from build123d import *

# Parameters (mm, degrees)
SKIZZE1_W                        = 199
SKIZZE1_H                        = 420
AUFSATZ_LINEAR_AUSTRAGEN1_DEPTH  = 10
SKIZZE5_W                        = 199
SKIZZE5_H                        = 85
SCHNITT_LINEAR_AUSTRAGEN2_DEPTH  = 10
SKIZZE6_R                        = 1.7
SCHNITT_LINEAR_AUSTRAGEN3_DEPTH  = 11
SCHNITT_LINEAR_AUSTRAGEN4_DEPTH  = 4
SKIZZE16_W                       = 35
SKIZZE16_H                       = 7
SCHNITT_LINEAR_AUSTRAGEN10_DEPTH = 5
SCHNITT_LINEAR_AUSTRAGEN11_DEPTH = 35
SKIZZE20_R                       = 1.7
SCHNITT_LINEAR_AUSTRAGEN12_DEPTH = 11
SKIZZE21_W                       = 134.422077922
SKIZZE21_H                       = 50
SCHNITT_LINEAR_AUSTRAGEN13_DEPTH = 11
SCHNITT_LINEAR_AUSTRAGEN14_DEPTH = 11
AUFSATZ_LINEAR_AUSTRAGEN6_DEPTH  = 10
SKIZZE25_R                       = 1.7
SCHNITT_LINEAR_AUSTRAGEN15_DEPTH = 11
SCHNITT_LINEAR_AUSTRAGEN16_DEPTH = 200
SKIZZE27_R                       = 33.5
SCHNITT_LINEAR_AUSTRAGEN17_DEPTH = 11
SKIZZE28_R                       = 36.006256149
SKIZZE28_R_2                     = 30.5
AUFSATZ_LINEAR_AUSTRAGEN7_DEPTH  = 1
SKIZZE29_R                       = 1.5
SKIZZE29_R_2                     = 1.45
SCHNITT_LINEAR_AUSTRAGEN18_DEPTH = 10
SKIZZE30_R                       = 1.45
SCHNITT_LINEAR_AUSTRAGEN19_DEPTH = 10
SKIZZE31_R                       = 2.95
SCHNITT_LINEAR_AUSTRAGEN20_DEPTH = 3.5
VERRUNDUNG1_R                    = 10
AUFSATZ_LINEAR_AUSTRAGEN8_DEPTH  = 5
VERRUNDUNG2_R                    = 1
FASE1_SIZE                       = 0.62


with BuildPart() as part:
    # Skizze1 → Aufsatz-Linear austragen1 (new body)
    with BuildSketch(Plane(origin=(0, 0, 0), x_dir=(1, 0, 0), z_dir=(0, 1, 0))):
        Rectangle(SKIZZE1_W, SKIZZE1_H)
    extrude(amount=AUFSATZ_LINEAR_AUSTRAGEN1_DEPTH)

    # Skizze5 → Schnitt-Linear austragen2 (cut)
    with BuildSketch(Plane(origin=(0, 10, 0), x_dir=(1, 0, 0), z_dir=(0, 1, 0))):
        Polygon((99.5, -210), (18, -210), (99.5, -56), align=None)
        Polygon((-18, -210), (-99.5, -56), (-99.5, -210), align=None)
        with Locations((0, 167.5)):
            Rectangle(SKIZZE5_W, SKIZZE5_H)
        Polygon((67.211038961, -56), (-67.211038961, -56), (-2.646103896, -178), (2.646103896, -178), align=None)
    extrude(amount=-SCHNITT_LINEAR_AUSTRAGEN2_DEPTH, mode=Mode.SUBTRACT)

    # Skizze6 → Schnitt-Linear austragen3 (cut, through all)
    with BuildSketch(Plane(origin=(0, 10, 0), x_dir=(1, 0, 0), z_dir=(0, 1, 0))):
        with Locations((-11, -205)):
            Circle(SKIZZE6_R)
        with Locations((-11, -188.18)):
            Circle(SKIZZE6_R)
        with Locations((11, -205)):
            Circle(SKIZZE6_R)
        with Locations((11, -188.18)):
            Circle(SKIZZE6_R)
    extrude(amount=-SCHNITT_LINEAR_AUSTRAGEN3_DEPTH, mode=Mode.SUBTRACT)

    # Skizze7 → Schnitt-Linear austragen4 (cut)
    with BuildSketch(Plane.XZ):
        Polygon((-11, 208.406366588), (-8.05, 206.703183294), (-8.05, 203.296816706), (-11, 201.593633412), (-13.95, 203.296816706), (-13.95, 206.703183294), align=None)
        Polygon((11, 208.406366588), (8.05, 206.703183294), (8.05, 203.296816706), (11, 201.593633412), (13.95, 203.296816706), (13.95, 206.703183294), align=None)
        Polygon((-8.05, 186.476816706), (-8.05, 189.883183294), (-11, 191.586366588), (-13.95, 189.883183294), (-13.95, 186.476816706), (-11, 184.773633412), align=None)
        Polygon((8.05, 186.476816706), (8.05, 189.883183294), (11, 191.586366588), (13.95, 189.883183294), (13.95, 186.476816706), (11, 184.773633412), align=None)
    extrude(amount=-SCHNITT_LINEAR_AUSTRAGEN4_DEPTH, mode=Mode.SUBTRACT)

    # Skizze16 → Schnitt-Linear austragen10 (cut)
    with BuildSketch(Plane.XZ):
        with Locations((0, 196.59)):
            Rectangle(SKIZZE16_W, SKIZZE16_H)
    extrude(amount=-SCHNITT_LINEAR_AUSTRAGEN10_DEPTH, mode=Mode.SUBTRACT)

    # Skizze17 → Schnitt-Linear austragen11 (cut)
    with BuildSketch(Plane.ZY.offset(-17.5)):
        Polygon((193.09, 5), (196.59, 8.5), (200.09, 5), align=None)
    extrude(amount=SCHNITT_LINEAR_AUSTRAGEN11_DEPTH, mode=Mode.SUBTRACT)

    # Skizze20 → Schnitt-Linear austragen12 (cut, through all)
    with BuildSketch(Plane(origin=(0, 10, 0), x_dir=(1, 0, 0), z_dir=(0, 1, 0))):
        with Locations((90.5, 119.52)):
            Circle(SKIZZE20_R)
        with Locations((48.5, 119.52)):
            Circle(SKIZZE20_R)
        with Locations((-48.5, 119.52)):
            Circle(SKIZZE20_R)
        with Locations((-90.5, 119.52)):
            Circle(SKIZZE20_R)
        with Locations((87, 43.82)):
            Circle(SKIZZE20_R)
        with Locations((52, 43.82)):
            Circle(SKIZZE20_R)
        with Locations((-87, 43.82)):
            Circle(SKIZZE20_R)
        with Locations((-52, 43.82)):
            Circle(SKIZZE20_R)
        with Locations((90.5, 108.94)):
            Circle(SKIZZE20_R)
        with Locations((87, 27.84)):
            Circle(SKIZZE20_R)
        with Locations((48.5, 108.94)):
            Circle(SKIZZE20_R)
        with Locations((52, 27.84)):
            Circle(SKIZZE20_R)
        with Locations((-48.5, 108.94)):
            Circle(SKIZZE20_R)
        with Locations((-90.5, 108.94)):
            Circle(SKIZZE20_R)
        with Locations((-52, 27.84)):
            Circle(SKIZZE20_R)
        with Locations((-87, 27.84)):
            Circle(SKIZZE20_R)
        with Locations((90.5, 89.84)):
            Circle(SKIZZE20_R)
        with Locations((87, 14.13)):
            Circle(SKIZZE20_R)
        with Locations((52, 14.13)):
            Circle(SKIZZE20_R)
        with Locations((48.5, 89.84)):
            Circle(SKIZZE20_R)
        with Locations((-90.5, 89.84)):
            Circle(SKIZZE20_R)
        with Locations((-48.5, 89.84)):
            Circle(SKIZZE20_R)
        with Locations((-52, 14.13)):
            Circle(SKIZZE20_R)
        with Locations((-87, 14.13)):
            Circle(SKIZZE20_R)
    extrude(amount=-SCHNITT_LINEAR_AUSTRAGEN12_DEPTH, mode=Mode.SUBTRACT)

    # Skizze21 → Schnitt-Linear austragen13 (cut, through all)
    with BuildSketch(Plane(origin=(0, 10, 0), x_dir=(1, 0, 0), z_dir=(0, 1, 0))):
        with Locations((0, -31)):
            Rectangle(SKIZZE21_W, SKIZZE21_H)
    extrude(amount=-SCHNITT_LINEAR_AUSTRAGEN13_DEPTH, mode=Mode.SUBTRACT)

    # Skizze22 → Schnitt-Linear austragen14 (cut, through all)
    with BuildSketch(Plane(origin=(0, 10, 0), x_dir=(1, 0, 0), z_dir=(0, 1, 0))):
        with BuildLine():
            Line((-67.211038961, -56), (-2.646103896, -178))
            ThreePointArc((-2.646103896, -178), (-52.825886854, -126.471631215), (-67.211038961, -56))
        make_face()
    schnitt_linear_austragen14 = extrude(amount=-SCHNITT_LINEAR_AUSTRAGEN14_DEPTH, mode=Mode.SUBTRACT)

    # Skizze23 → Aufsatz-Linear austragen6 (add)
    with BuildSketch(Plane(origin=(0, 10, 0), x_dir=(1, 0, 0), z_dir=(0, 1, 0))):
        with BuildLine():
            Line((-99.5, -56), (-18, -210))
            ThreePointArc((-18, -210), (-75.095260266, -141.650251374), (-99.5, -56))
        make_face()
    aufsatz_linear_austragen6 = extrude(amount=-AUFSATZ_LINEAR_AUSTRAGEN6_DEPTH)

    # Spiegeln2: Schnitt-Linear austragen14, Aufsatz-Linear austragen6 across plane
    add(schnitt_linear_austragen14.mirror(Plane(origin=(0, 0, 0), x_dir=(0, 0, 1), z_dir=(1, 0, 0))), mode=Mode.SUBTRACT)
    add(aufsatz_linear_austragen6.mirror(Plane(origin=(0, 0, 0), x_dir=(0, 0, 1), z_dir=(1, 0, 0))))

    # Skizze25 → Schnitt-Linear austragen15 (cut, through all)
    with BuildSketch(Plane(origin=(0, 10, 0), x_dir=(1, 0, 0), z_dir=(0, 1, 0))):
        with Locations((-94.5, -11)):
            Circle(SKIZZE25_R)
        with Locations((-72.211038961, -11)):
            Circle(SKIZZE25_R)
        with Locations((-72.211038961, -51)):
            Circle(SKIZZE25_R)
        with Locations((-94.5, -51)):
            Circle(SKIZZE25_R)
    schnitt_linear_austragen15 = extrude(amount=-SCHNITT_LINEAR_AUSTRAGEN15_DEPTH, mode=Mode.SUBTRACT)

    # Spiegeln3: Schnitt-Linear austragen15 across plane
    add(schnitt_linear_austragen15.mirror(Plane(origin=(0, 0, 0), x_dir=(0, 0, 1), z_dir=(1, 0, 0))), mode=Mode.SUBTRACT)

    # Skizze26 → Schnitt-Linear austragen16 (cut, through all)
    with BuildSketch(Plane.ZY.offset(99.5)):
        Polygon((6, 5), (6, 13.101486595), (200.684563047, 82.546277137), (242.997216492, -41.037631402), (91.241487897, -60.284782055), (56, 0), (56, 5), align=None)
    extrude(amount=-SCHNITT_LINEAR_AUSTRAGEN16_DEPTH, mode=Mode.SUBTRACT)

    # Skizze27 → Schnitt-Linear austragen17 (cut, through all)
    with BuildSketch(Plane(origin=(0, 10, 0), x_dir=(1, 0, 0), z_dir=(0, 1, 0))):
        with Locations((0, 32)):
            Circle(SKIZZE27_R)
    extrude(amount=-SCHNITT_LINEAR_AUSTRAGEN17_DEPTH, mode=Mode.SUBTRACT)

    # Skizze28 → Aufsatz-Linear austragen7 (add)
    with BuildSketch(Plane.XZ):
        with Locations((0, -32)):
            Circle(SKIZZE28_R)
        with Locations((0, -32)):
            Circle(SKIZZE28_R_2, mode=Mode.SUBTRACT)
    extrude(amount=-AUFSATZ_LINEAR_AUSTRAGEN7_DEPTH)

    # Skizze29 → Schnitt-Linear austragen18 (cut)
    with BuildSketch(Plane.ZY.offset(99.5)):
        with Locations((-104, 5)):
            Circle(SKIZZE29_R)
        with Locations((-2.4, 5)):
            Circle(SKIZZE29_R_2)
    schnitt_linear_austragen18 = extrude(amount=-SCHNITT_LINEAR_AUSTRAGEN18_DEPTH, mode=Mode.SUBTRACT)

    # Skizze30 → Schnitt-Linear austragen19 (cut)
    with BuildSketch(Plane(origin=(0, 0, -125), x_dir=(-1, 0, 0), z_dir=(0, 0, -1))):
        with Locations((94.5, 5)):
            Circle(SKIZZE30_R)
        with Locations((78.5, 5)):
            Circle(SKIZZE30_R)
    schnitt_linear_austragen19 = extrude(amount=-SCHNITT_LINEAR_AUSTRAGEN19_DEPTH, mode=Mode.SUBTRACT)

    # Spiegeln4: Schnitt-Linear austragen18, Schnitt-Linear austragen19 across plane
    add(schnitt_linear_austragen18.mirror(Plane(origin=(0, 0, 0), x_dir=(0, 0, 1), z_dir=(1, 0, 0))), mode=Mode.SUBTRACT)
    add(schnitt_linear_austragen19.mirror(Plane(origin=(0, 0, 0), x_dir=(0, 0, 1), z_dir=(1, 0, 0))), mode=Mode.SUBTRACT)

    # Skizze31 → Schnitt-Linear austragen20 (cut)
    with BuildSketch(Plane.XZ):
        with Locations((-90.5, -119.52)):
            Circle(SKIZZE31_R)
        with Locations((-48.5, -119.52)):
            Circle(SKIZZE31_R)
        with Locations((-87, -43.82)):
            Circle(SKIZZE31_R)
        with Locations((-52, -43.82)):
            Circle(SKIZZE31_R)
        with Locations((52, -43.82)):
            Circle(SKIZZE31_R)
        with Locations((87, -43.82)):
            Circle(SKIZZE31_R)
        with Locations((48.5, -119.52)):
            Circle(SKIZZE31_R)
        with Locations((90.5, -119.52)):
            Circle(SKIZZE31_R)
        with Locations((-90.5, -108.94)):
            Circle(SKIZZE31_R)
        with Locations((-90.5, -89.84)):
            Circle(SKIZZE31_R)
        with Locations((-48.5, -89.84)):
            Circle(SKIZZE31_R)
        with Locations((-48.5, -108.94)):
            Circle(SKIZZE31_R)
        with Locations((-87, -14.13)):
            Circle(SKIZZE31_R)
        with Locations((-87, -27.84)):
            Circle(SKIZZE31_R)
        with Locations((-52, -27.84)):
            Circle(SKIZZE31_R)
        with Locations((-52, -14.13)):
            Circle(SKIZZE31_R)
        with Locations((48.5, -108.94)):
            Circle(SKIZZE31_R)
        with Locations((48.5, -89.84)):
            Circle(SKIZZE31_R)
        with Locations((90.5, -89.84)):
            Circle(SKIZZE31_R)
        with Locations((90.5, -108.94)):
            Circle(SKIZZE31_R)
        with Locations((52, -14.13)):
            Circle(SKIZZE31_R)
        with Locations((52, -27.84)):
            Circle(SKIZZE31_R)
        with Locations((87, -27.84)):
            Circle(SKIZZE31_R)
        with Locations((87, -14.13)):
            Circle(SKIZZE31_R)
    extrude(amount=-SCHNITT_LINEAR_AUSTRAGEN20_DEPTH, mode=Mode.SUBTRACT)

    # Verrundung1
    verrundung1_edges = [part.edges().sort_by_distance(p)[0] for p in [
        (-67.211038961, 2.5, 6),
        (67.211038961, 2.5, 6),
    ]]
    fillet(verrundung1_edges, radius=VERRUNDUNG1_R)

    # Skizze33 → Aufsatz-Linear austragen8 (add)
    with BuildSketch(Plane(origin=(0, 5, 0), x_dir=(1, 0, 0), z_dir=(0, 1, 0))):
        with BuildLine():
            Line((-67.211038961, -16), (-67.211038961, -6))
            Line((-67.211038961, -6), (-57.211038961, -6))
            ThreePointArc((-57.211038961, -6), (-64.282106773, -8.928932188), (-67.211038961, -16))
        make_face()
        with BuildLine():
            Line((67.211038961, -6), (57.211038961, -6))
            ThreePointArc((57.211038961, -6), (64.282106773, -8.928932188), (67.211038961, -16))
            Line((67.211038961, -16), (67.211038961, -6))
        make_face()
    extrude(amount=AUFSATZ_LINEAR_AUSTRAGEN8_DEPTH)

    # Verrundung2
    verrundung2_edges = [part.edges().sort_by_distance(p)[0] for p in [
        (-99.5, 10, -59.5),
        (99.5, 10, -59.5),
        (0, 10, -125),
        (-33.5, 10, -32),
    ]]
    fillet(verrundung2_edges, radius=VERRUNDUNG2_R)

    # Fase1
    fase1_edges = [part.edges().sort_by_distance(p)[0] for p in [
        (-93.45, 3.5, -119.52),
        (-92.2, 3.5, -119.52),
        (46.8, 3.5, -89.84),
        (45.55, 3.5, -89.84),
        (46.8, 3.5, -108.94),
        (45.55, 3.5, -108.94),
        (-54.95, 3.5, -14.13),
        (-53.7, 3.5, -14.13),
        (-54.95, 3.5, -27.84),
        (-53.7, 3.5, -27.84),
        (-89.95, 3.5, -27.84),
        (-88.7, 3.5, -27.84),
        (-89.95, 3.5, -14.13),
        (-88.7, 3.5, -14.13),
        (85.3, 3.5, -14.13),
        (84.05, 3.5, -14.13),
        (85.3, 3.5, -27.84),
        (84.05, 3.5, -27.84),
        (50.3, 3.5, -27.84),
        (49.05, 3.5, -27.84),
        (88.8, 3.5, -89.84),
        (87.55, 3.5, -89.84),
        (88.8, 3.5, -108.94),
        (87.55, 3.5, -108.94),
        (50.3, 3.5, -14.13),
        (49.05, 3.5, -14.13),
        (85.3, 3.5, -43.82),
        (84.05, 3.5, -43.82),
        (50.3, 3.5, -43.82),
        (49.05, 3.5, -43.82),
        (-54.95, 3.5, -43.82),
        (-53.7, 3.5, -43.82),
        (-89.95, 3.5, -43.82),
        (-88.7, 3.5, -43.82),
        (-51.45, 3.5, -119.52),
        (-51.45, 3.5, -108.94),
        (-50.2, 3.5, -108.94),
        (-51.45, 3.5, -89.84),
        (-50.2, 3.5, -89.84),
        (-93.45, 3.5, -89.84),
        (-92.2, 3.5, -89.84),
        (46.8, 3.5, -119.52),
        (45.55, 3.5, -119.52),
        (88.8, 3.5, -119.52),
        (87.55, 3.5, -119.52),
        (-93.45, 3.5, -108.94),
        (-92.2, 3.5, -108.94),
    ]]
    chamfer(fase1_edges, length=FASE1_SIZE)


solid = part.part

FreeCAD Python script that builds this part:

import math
import FreeCAD as App
import Part
import Sketcher
Q = App.Units.Quantity


def edges_at(feature, points):
    """Names of the edges that pass closest to the given points."""
    edges = feature.Shape.Edges
    near = lambda p: min(range(len(edges)), key=lambda i: edges[i].distToShape(Part.Vertex(*p))[0])
    return sorted({f"Edge{near(p) + 1}" for p in points})


def add_polygon(sketch, points):
    """Adds a closed chain of lines whose ends are joined by coincident constraints."""
    first, n = sketch.GeometryCount, len(points)
    for a, b in zip(points, points[1:] + points[:1]):
        sketch.addGeometry(Part.LineSegment(App.Vector(*a, 0), App.Vector(*b, 0)), False)
    for i in range(n):
        sketch.addConstraint(Sketcher.Constraint("Coincident", first + i, 2, first + (i + 1) % n, 1))

doc = App.newDocument("Part")
body = doc.addObject("PartDesign::Body", "Body")

# Sketch on XZ plane
sketch1 = doc.addObject("Sketcher::SketchObject", "Sketch")
body.addObject(sketch1)
sketch1.AttachmentSupport = (doc.XZ_Plane, [""])
sketch1.MapMode = "FlatFace"
add_polygon(sketch1, [(-100, -210), (-100, 210), (100, 210), (100, -210)])  # lines 0-3
sketch1.addConstraint(Sketcher.Constraint("Vertical", 0))
sketch1.addConstraint(Sketcher.Constraint("Horizontal", 1))
sketch1.addConstraint(Sketcher.Constraint("Vertical", 2))
sketch1.addConstraint(Sketcher.Constraint("Horizontal", 3))
sketch1.addConstraint(Sketcher.Constraint("Symmetric", 0, 2, 2, 2, -1, 1))
sketch1.addConstraint(Sketcher.Constraint("DistanceX", 1, 1, 1, 2, 199.0))
sketch1.addConstraint(Sketcher.Constraint("DistanceY", 0, 1, 0, 2, 420.0))
pad1 = doc.addObject("PartDesign::Pad", "Pad")
body.addObject(pad1)
pad1.Profile = sketch1
pad1.Length = 10
pad1.Reversed = True

# Sketch on XZ plane
sketch2 = doc.addObject("Sketcher::SketchObject", "Sketch001")
body.addObject(sketch2)
sketch2.AttachmentSupport = (doc.XZ_Plane, [""])
sketch2.MapMode = "FlatFace"
sketch2.AttachmentOffset = App.Placement(App.Vector(0, 0, -10), App.Rotation())
add_polygon(sketch2, [(18, 210), (100, 210), (100, 56)])  # lines 0-2
add_polygon(sketch2, [(-18, 210), (-100, 56), (-100, 210)])  # lines 3-5
add_polygon(sketch2, [(-100, -210), (-100, -125), (100, -125), (100, -210)])  # lines 6-9
add_polygon(sketch2, [(67, 56), (-67, 56), (-3, 178), (3, 178)])  # lines 10-13
sketch2.addConstraint(Sketcher.Constraint("Horizontal", 0))
sketch2.addConstraint(Sketcher.Constraint("Vertical", 1))
sketch2.addConstraint(Sketcher.Constraint("Vertical", 4))
sketch2.addConstraint(Sketcher.Constraint("Horizontal", 5))
sketch2.addConstraint(Sketcher.Constraint("Vertical", 6))
sketch2.addConstraint(Sketcher.Constraint("Horizontal", 7))
sketch2.addConstraint(Sketcher.Constraint("Vertical", 8))
sketch2.addConstraint(Sketcher.Constraint("Horizontal", 9))
sketch2.addConstraint(Sketcher.Constraint("Horizontal", 10))
sketch2.addConstraint(Sketcher.Constraint("Horizontal", 12))
sketch2.addConstraint(Sketcher.Constraint("Symmetric", 4, 2, 8, 2, -1, 1))
sketch2.addConstraint(Sketcher.Constraint("Symmetric", 0, 2, 9, 2, -1, 1))
sketch2.addConstraint(Sketcher.Constraint("Symmetric", 1, 2, 3, 2, -2))
sketch2.addConstraint(Sketcher.Constraint("Parallel", 3, 11))
sketch2.addConstraint(Sketcher.Constraint("Parallel", 2, 13))
sketch2.addConstraint(Sketcher.Constraint("Horizontal", 3, 2, 10, 2))
sketch2.addConstraint(Sketcher.Constraint("Equal", 0, 5))
sketch2.addConstraint(Sketcher.Constraint("DistanceX", 7, 1, 7, 2, 199.0))
sketch2.addConstraint(Sketcher.Constraint("DistanceY", 1, 2, 1, 1, 154.0))
sketch2.addConstraint(Sketcher.Constraint("DistanceY", 6, 1, 6, 2, 85.0))
sketch2.addConstraint(Sketcher.Constraint("DistanceX", 0, 1, 0, 2, 81.5))
sketch2.addConstraint(Sketcher.Constraint("DistanceY", -1, 1, 0, 2, 210.0))
sketch2.addConstraint(Sketcher.Constraint("DistanceY", -1, 1, 11, 2, 178.0))
sketch2.addConstraint(Sketcher.Constraint("DistanceX", 10, 2, 10, 1, 134.422078))
sketch2.addConstraint(Sketcher.Constraint("DistanceX", 10, 2, -1, 1, 67.211039))
pocket1 = doc.addObject("PartDesign::Pocket", "Pocket")
body.addObject(pocket1)
pocket1.Profile = sketch2
pocket1.Length = 10
pocket1.Reversed = True

# Sketch on XZ plane
sketch3 = doc.addObject("Sketcher::SketchObject", "Sketch002")
body.addObject(sketch3)
sketch3.AttachmentSupport = (doc.XZ_Plane, [""])
sketch3.MapMode = "FlatFace"
sketch3.AttachmentOffset = App.Placement(App.Vector(0, 0, -10), App.Rotation())
sketch3.addGeometry(Part.Circle(App.Vector(-11, 205, 0), App.Vector(0, 0, 1), 1.7), False)
sketch3.addGeometry(Part.Circle(App.Vector(-11, 188.2, 0), App.Vector(0, 0, 1), 1.7), False)
sketch3.addGeometry(Part.Circle(App.Vector(11, 205, 0), App.Vector(0, 0, 1), 1.7), False)
sketch3.addGeometry(Part.Circle(App.Vector(11, 188.2, 0), App.Vector(0, 0, 1), 1.7), False)
sketch3.addConstraint(Sketcher.Constraint("Equal", 0, 1))
sketch3.addConstraint(Sketcher.Constraint("Equal", 1, 2))
sketch3.addConstraint(Sketcher.Constraint("Equal", 2, 3))
sketch3.addConstraint(Sketcher.Constraint("Symmetric", 0, 3, 2, 3, -2))
sketch3.addConstraint(Sketcher.Constraint("Symmetric", 1, 3, 3, 3, -2))
sketch3.addConstraint(Sketcher.Constraint("Vertical", 0, 3, 1, 3))
sketch3.addConstraint(Sketcher.Constraint("Diameter", 0, 3.4))
sketch3.addConstraint(Sketcher.Constraint("DistanceX", 0, 3, -1, 1, 11.0))
sketch3.addConstraint(Sketcher.Constraint("DistanceY", -1, 1, 0, 3, 205.0))
sketch3.addConstraint(Sketcher.Constraint("DistanceY", -1, 1, 1, 3, 188.18))
pocket2 = doc.addObject("PartDesign::Pocket", "Pocket001")
body.addObject(pocket2)
pocket2.Profile = sketch3
pocket2.Type = "ThroughAll"
pocket2.Reversed = True

# Sketch on XZ plane
sketch4 = doc.addObject("Sketcher::SketchObject", "Sketch003")
body.addObject(sketch4)
sketch4.AttachmentSupport = (doc.XZ_Plane, [""])
sketch4.MapMode = "FlatFace"
add_polygon(sketch4, [(-8.1, 206.7), (-11, 208.4), (-13.9, 206.7), (-13.9, 203.3), (-11, 201.6), (-8.1, 203.3)])  # lines 0-5
add_polygon(sketch4, [(11, 208.4), (8.1, 206.7), (8.1, 203.3), (11, 201.6), (13.9, 203.3), (13.9, 206.7)])  # lines 6-11
add_polygon(sketch4, [(-8.1, 186.5), (-8.1, 189.9), (-11, 191.6), (-13.9, 189.9), (-13.9, 186.5), (-11, 184.8)])  # lines 12-17
add_polygon(sketch4, [(8.1, 189.9), (8.1, 186.5), (11, 184.8), (13.9, 186.5), (13.9, 189.9), (11, 191.6)])  # lines 18-23
sketch4.addConstraint(Sketcher.Constraint("Vertical", 2))
sketch4.addConstraint(Sketcher.Constraint("Vertical", 5))
sketch4.addConstraint(Sketcher.Constraint("Vertical", 7))
sketch4.addConstraint(Sketcher.Constraint("Vertical", 10))
sketch4.addConstraint(Sketcher.Constraint("Vertical", 12))
sketch4.addConstraint(Sketcher.Constraint("Vertical", 15))
sketch4.addConstraint(Sketcher.Constraint("Vertical", 18))
sketch4.addConstraint(Sketcher.Constraint("Vertical", 21))
sketch4.addConstraint(Sketcher.Constraint("Symmetric", 5, 2, 6, 2, -2))
sketch4.addConstraint(Sketcher.Constraint("Symmetric", 3, 2, 8, 2, -2))
sketch4.addConstraint(Sketcher.Constraint("Symmetric", 2, 2, 9, 2, -2))
sketch4.addConstraint(Sketcher.Constraint("Symmetric", 0, 2, 11, 2, -2))
sketch4.addConstraint(Sketcher.Constraint("Symmetric", 17, 2, 18, 2, -2))
sketch4.addConstraint(Sketcher.Constraint("Symmetric", 16, 2, 19, 2, -2))
sketch4.addConstraint(Sketcher.Constraint("Symmetric", 15, 2, 20, 2, -2))
sketch4.addConstraint(Sketcher.Constraint("Symmetric", 13, 2, 22, 2, -2))
sketch4.addConstraint(Sketcher.Constraint("Parallel", 0, 3))
sketch4.addConstraint(Sketcher.Constraint("Parallel", 1, 4))
sketch4.addConstraint(Sketcher.Constraint("Parallel", 4, 6))
sketch4.addConstraint(Sketcher.Constraint("Parallel", 3, 8))
sketch4.addConstraint(Sketcher.Constraint("Parallel", 8, 11))
sketch4.addConstraint(Sketcher.Constraint("Parallel", 11, 13))
sketch4.addConstraint(Sketcher.Constraint("Parallel", 9, 14))
sketch4.addConstraint(Sketcher.Constraint("Parallel", 13, 16))
sketch4.addConstraint(Sketcher.Constraint("Parallel", 14, 17))
sketch4.addConstraint(Sketcher.Constraint("Parallel", 19, 22))
sketch4.addConstraint(Sketcher.Constraint("Parallel", 20, 23))
sketch4.addConstraint(Sketcher.Constraint("Horizontal", 2, 2, 4, 2))
sketch4.addConstraint(Sketcher.Constraint("Horizontal", 1, 2, 5, 2))
sketch4.addConstraint(Sketcher.Constraint("Horizontal", 12, 2, 14, 2))
sketch4.addConstraint(Sketcher.Constraint("Horizontal", 15, 2, 17, 2))
sketch4.addConstraint(Sketcher.Constraint("Vertical", 5, 2, 12, 2))
sketch4.addConstraint(Sketcher.Constraint("Vertical", 3, 2, 13, 2))
sketch4.addConstraint(Sketcher.Constraint("Equal", 10, 12))
sketch4.addConstraint(Sketcher.Constraint("Angle", 0, Q("150 deg")))
sketch4.addConstraint(Sketcher.Constraint("DistanceX", 0, 2, -1, 1, 11.0))
sketch4.addConstraint(Sketcher.Constraint("DistanceX", 2, 2, 4, 2, 5.9))
sketch4.addConstraint(Sketcher.Constraint("DistanceY", 12, 2, 5, 2, 16.82))
sketch4.addConstraint(Sketcher.Constraint("DistanceY", 2, 2, 2, 1, 3.406367))
sketch4.addConstraint(Sketcher.Constraint("DistanceY", -1, 1, 0, 2, 208.406367))
pocket3 = doc.addObject("PartDesign::Pocket", "Pocket002")
body.addObject(pocket3)
pocket3.Profile = sketch4
pocket3.Length = 4

# Sketch on XZ plane
sketch5 = doc.addObject("Sketcher::SketchObject", "Sketch004")
body.addObject(sketch5)
sketch5.AttachmentSupport = (doc.XZ_Plane, [""])
sketch5.MapMode = "FlatFace"
add_polygon(sketch5, [(-18, 200), (-18, 193), (18, 193), (18, 200)])  # lines 0-3
sketch5.addConstraint(Sketcher.Constraint("Vertical", 0))
sketch5.addConstraint(Sketcher.Constraint("Horizontal", 1))
sketch5.addConstraint(Sketcher.Constraint("Vertical", 2))
sketch5.addConstraint(Sketcher.Constraint("Horizontal", 3))
sketch5.addConstraint(Sketcher.Constraint("DistanceX", 1, 1, 1, 2, 35.0))
sketch5.addConstraint(Sketcher.Constraint("DistanceY", 0, 2, 0, 1, 7.0))
sketch5.addConstraint(Sketcher.Constraint("DistanceX", 0, 2, -1, 1, 17.5))
sketch5.addConstraint(Sketcher.Constraint("DistanceY", -1, 1, 0, 2, 193.09))
pocket4 = doc.addObject("PartDesign::Pocket", "Pocket003")
body.addObject(pocket4)
pocket4.Profile = sketch5
pocket4.Length = 5

# Sketch on YZ plane
sketch6 = doc.addObject("Sketcher::SketchObject", "Sketch005")
body.addObject(sketch6)
sketch6.AttachmentSupport = (doc.YZ_Plane, [""])
sketch6.MapMode = "FlatFace"
sketch6.AttachmentOffset = App.Placement(App.Vector(0, 0, 17.5), App.Rotation())
add_polygon(sketch6, [(8.5, 196.6), (5, 193.1), (5, 200.1)])  # lines 0-2
sketch6.addConstraint(Sketcher.Constraint("Vertical", 1))
sketch6.addConstraint(Sketcher.Constraint("Perpendicular", 0, 2))
sketch6.addConstraint(Sketcher.Constraint("Equal", 0, 2))
sketch6.addConstraint(Sketcher.Constraint("DistanceY", 1, 1, 1, 2, 7.0))
sketch6.addConstraint(Sketcher.Constraint("DistanceX", -1, 1, 0, 2, 5.0))
sketch6.addConstraint(Sketcher.Constraint("DistanceY", -1, 1, 0, 2, 193.09))
pocket5 = doc.addObject("PartDesign::Pocket", "Pocket004")
body.addObject(pocket5)
pocket5.Profile = sketch6
pocket5.Length = 35

# Sketch on XZ plane
sketch7 = doc.addObject("Sketcher::SketchObject", "Sketch006")
body.addObject(sketch7)
sketch7.AttachmentSupport = (doc.XZ_Plane, [""])
sketch7.MapMode = "FlatFace"
sketch7.AttachmentOffset = App.Placement(App.Vector(0, 0, -10), App.Rotation())
sketch7.addGeometry(Part.Circle(App.Vector(90.5, -119.5, 0), App.Vector(0, 0, 1), 1.7), False)
sketch7.addGeometry(Part.Circle(App.Vector(48.5, -119.5, 0), App.Vector(0, 0, 1), 1.7), False)
sketch7.addGeometry(Part.Circle(App.Vector(-48.5, -119.5, 0), App.Vector(0, 0, 1), 1.7), False)
sketch7.addGeometry(Part.Circle(App.Vector(-90.5, -119.5, 0), App.Vector(0, 0, 1), 1.7), False)
sketch7.addGeometry(Part.Circle(App.Vector(87, -43.8, 0), App.Vector(0, 0, 1), 1.7), False)
sketch7.addGeometry(Part.Circle(App.Vector(52, -43.8, 0), App.Vector(0, 0, 1), 1.7), False)
sketch7.addGeometry(Part.Circle(App.Vector(-87, -43.8, 0), App.Vector(0, 0, 1), 1.7), False)
sketch7.addGeometry(Part.Circle(App.Vector(-52, -43.8, 0), App.Vector(0, 0, 1), 1.7), False)
sketch7.addGeometry(Part.Circle(App.Vector(90.5, -108.9, 0), App.Vector(0, 0, 1), 1.7), False)
sketch7.addGeometry(Part.Circle(App.Vector(87, -27.8, 0), App.Vector(0, 0, 1), 1.7), False)
sketch7.addGeometry(Part.Circle(App.Vector(48.5, -108.9, 0), App.Vector(0, 0, 1), 1.7), False)
sketch7.addGeometry(Part.Circle(App.Vector(52, -27.8, 0), App.Vector(0, 0, 1), 1.7), False)
sketch7.addGeometry(Part.Circle(App.Vector(-48.5, -108.9, 0), App.Vector(0, 0, 1), 1.7), False)
sketch7.addGeometry(Part.Circle(App.Vector(-90.5, -108.9, 0), App.Vector(0, 0, 1), 1.7), False)
sketch7.addGeometry(Part.Circle(App.Vector(-52, -27.8, 0), App.Vector(0, 0, 1), 1.7), False)
sketch7.addGeometry(Part.Circle(App.Vector(-87, -27.8, 0), App.Vector(0, 0, 1), 1.7), False)
sketch7.addGeometry(Part.Circle(App.Vector(90.5, -89.8, 0), App.Vector(0, 0, 1), 1.7), False)
sketch7.addGeometry(Part.Circle(App.Vector(87, -14.1, 0), App.Vector(0, 0, 1), 1.7), False)
sketch7.addGeometry(Part.Circle(App.Vector(52, -14.1, 0), App.Vector(0, 0, 1), 1.7), False)
sketch7.addGeometry(Part.Circle(App.Vector(48.5, -89.8, 0), App.Vector(0, 0, 1), 1.7), False)
sketch7.addGeometry(Part.Circle(App.Vector(-90.5, -89.8, 0), App.Vector(0, 0, 1), 1.7), False)
sketch7.addGeometry(Part.Circle(App.Vector(-48.5, -89.8, 0), App.Vector(0, 0, 1), 1.7), False)
sketch7.addGeometry(Part.Circle(App.Vector(-52, -14.1, 0), App.Vector(0, 0, 1), 1.7), False)
sketch7.addGeometry(Part.Circle(App.Vector(-87, -14.1, 0), App.Vector(0, 0, 1), 1.7), False)
sketch7.addConstraint(Sketcher.Constraint("Equal", 0, 1))
sketch7.addConstraint(Sketcher.Constraint("Equal", 1, 2))
sketch7.addConstraint(Sketcher.Constraint("Equal", 2, 3))
sketch7.addConstraint(Sketcher.Constraint("Equal", 3, 4))
sketch7.addConstraint(Sketcher.Constraint("Equal", 4, 5))
sketch7.addConstraint(Sketcher.Constraint("Equal", 5, 6))
sketch7.addConstraint(Sketcher.Constraint("Equal", 6, 7))
sketch7.addConstraint(Sketcher.Constraint("Equal", 7, 8))
sketch7.addConstraint(Sketcher.Constraint("Equal", 8, 9))
sketch7.addConstraint(Sketcher.Constraint("Equal", 9, 10))
sketch7.addConstraint(Sketcher.Constraint("Equal", 10, 11))
sketch7.addConstraint(Sketcher.Constraint("Equal", 11, 12))
sketch7.addConstraint(Sketcher.Constraint("Equal", 12, 13))
sketch7.addConstraint(Sketcher.Constraint("Equal", 13, 14))
sketch7.addConstraint(Sketcher.Constraint("Equal", 14, 15))
sketch7.addConstraint(Sketcher.Constraint("Equal", 15, 16))
sketch7.addConstraint(Sketcher.Constraint("Equal", 16, 17))
sketch7.addConstraint(Sketcher.Constraint("Equal", 17, 18))
sketch7.addConstraint(Sketcher.Constraint("Equal", 18, 19))
sketch7.addConstraint(Sketcher.Constraint("Equal", 19, 20))
sketch7.addConstraint(Sketcher.Constraint("Equal", 20, 21))
sketch7.addConstraint(Sketcher.Constraint("Equal", 21, 22))
sketch7.addConstraint(Sketcher.Constraint("Equal", 22, 23))
sketch7.addConstraint(Sketcher.Constraint("Symmetric", 1, 3, 2, 3, -2))
sketch7.addConstraint(Sketcher.Constraint("Symmetric", 0, 3, 3, 3, -2))
sketch7.addConstraint(Sketcher.Constraint("Symmetric", 4, 3, 6, 3, -2))
sketch7.addConstraint(Sketcher.Constraint("Symmetric", 5, 3, 7, 3, -2))
sketch7.addConstraint(Sketcher.Constraint("Symmetric", 10, 3, 12, 3, -2))
sketch7.addConstraint(Sketcher.Constraint("Symmetric", 8, 3, 13, 3, -2))
sketch7.addConstraint(Sketcher.Constraint("Symmetric", 11, 3, 14, 3, -2))
sketch7.addConstraint(Sketcher.Constraint("Symmetric", 9, 3, 15, 3, -2))
sketch7.addConstraint(Sketcher.Constraint("Symmetric", 16, 3, 20, 3, -2))
sketch7.addConstraint(Sketcher.Constraint("Symmetric", 19, 3, 21, 3, -2))
sketch7.addConstraint(Sketcher.Constraint("Symmetric", 18, 3, 22, 3, -2))
sketch7.addConstraint(Sketcher.Constraint("Symmetric", 17, 3, 23, 3, -2))
sketch7.addConstraint(Sketcher.Constraint("Horizontal", 0, 3, 1, 3))
sketch7.addConstraint(Sketcher.Constraint("Horizontal", 4, 3, 5, 3))
sketch7.addConstraint(Sketcher.Constraint("Horizontal", 8, 3, 10, 3))
sketch7.addConstraint(Sketcher.Constraint("Horizontal", 9, 3, 11, 3))
sketch7.addConstraint(Sketcher.Constraint("Horizontal", 17, 3, 18, 3))
sketch7.addConstraint(Sketcher.Constraint("Horizontal", 16, 3, 19, 3))
sketch7.addConstraint(Sketcher.Constraint("Vertical", 0, 3, 8, 3))
sketch7.addConstraint(Sketcher.Constraint("Vertical", 4, 3, 9, 3))
sketch7.addConstraint(Sketcher.Constraint("Vertical", 1, 3, 10, 3))
sketch7.addConstraint(Sketcher.Constraint("Vertical", 5, 3, 11, 3))
sketch7.addConstraint(Sketcher.Constraint("Vertical", 8, 3, 16, 3))
sketch7.addConstraint(Sketcher.Constraint("Vertical", 9, 3, 17, 3))
sketch7.addConstraint(Sketcher.Constraint("Vertical", 11, 3, 18, 3))
sketch7.addConstraint(Sketcher.Constraint("Vertical", 10, 3, 19, 3))
sketch7.addConstraint(Sketcher.Constraint("Diameter", 0, 3.4))
sketch7.addConstraint(Sketcher.Constraint("DistanceX", -1, 1, 4, 3, 87.0))
sketch7.addConstraint(Sketcher.Constraint("DistanceX", -1, 1, 5, 3, 52.0))
sketch7.addConstraint(Sketcher.Constraint("DistanceX", 1, 3, 0, 3, 42.0))
sketch7.addConstraint(Sketcher.Constraint("DistanceX", 2, 3, 1, 3, 97.0))
sketch7.addConstraint(Sketcher.Constraint("DistanceY", 0, 3, 4, 3, 75.7))
sketch7.addConstraint(Sketcher.Constraint("DistanceY", 8, 3, 9, 3, 81.1))
sketch7.addConstraint(Sketcher.Constraint("DistanceY", 8, 3, 16, 3, 19.1))
sketch7.addConstraint(Sketcher.Constraint("DistanceY", 0, 3, -1, 1, 119.52))
sketch7.addConstraint(Sketcher.Constraint("DistanceY", 8, 3, -1, 1, 108.94))
sketch7.addConstraint(Sketcher.Constraint("DistanceY", 17, 3, -1, 1, 14.13))
pocket6 = doc.addObject("PartDesign::Pocket", "Pocket005")
body.addObject(pocket6)
pocket6.Profile = sketch7
pocket6.Type = "ThroughAll"
pocket6.Reversed = True

# Sketch on XZ plane
sketch8 = doc.addObject("Sketcher::SketchObject", "Sketch007")
body.addObject(sketch8)
sketch8.AttachmentSupport = (doc.XZ_Plane, [""])
sketch8.MapMode = "FlatFace"
sketch8.AttachmentOffset = App.Placement(App.Vector(0, 0, -10), App.Rotation())
add_polygon(sketch8, [(-67, 6), (-67, 56), (67, 56), (67, 6)])  # lines 0-3
sketch8.addConstraint(Sketcher.Constraint("Vertical", 0))
sketch8.addConstraint(Sketcher.Constraint("Horizontal", 1))
sketch8.addConstraint(Sketcher.Constraint("Vertical", 2))
sketch8.addConstraint(Sketcher.Constraint("Horizontal", 3))
sketch8.addConstraint(Sketcher.Constraint("DistanceY", 0, 1, 0, 2, 50.0))
sketch8.addConstraint(Sketcher.Constraint("DistanceY", -1, 1, 0, 2, 56.0))
sketch8.addConstraint(Sketcher.Constraint("DistanceX", 1, 1, 1, 2, 134.422078))
sketch8.addConstraint(Sketcher.Constraint("DistanceX", 0, 2, -1, 1, 67.211039))
pocket7 = doc.addObject("PartDesign::Pocket", "Pocket006")
body.addObject(pocket7)
pocket7.Profile = sketch8
pocket7.Type = "ThroughAll"
pocket7.Reversed = True

# Sketch on XZ plane
sketch9 = doc.addObject("Sketcher::SketchObject", "Sketch008")
body.addObject(sketch9)
sketch9.AttachmentSupport = (doc.XZ_Plane, [""])
sketch9.MapMode = "FlatFace"
sketch9.AttachmentOffset = App.Placement(App.Vector(0, 0, -10), App.Rotation())
sketch9.addGeometry(Part.LineSegment(App.Vector(-3, 178, 0), App.Vector(-67, 56, 0)), False)
sketch9.addGeometry(Part.ArcOfCircle(Part.Circle(App.Vector(60, 67, 0), App.Vector(0, 0, 1), 128), math.radians(119), math.radians(185)), False)
sketch9.addConstraint(Sketcher.Constraint("Coincident", 0, 1, 1, 1))
sketch9.addConstraint(Sketcher.Constraint("Coincident", 1, 2, 0, 2))
sketch9.addConstraint(Sketcher.Constraint("DistanceY", -1, 1, 0, 1, 178.0))
sketch9.addConstraint(Sketcher.Constraint("DistanceY", -1, 1, 1, 2, 56.0))
sketch9.addConstraint(Sketcher.Constraint("Radius", 1, 127.738656))
sketch9.addConstraint(Sketcher.Constraint("DistanceX", -1, 1, 1, 3, 60.076909))
sketch9.addConstraint(Sketcher.Constraint("DistanceX", 1, 2, -1, 1, 67.211039))
pocket8 = doc.addObject("PartDesign::Pocket", "Pocket007")
body.addObject(pocket8)
pocket8.Profile = sketch9
pocket8.Type = "ThroughAll"
pocket8.Reversed = True

# Sketch on XZ plane
sketch10 = doc.addObject("Sketcher::SketchObject", "Sketch009")
body.addObject(sketch10)
sketch10.AttachmentSupport = (doc.XZ_Plane, [""])
sketch10.MapMode = "FlatFace"
sketch10.AttachmentOffset = App.Placement(App.Vector(0, 0, -10), App.Rotation())
sketch10.addGeometry(Part.LineSegment(App.Vector(-18, 210, 0), App.Vector(-100, 56, 0)), False)
sketch10.addGeometry(Part.ArcOfCircle(Part.Circle(App.Vector(114, 41, 0), App.Vector(0, 0, 1), 214), math.radians(128), math.radians(176)), False)
sketch10.addConstraint(Sketcher.Constraint("Coincident", 0, 1, 1, 1))
sketch10.addConstraint(Sketcher.Constraint("Coincident", 1, 2, 0, 2))
sketch10.addConstraint(Sketcher.Constraint("DistanceX", 0, 1, -1, 1, 18.0))
sketch10.addConstraint(Sketcher.Constraint("DistanceY", -1, 1, 0, 1, 210.0))
sketch10.addConstraint(Sketcher.Constraint("DistanceY", -1, 1, 1, 2, 56.0))
sketch10.addConstraint(Sketcher.Constraint("DistanceX", 1, 2, -1, 1, 99.5))
sketch10.addConstraint(Sketcher.Constraint("Radius", 1, 214.4465))
pad2 = doc.addObject("PartDesign::Pad", "Pad001")
body.addObject(pad2)
pad2.Profile = sketch10
pad2.Length = 10
doc.recompute()

mirrored = doc.addObject("PartDesign::Mirrored", "Mirrored")
body.addObject(mirrored)
mirrored.Originals = [pocket8, pad2]
mirrored.MirrorPlane = (doc.YZ_Plane, [""])
body.Tip = mirrored

# Sketch on XZ plane
sketch11 = doc.addObject("Sketcher::SketchObject", "Sketch010")
body.addObject(sketch11)
sketch11.AttachmentSupport = (doc.XZ_Plane, [""])
sketch11.MapMode = "FlatFace"
sketch11.AttachmentOffset = App.Placement(App.Vector(0, 0, -10), App.Rotation())
sketch11.addGeometry(Part.Circle(App.Vector(-94.5, 11, 0), App.Vector(0, 0, 1), 1.7), False)
sketch11.addGeometry(Part.Circle(App.Vector(-72.2, 11, 0), App.Vector(0, 0, 1), 1.7), False)
sketch11.addGeometry(Part.Circle(App.Vector(-72.2, 51, 0), App.Vector(0, 0, 1), 1.7), False)
sketch11.addGeometry(Part.Circle(App.Vector(-94.5, 51, 0), App.Vector(0, 0, 1), 1.7), False)
sketch11.addConstraint(Sketcher.Constraint("Equal", 0, 1))
sketch11.addConstraint(Sketcher.Constraint("Equal", 1, 2))
sketch11.addConstraint(Sketcher.Constraint("Equal", 2, 3))
sketch11.addConstraint(Sketcher.Constraint("Horizontal", 0, 3, 1, 3))
sketch11.addConstraint(Sketcher.Constraint("Horizontal", 2, 3, 3, 3))
sketch11.addConstraint(Sketcher.Constraint("Vertical", 1, 3, 2, 3))
sketch11.addConstraint(Sketcher.Constraint("Vertical", 0, 3, 3, 3))
sketch11.addConstraint(Sketcher.Constraint("Diameter", 0, 3.4))
sketch11.addConstraint(Sketcher.Constraint("DistanceY", -1, 1, 0, 3, 11.0))
sketch11.addConstraint(Sketcher.Constraint("DistanceY", -1, 1, 2, 3, 51.0))
sketch11.addConstraint(Sketcher.Constraint("DistanceX", 0, 3, -1, 1, 94.5))
sketch11.addConstraint(Sketcher.Constraint("DistanceX", 1, 3, -1, 1, 72.211039))
pocket9 = doc.addObject("PartDesign::Pocket", "Pocket008")
body.addObject(pocket9)
pocket9.Profile = sketch11
pocket9.Type = "ThroughAll"
pocket9.Reversed = True
doc.recompute()

mirrored2 = doc.addObject("PartDesign::Mirrored", "Mirrored001")
body.addObject(mirrored2)
mirrored2.Originals = [pocket9]
mirrored2.MirrorPlane = (doc.YZ_Plane, [""])
body.Tip = mirrored2

# Sketch on YZ plane
sketch12 = doc.addObject("Sketcher::SketchObject", "Sketch011")
body.addObject(sketch12)
sketch12.AttachmentSupport = (doc.YZ_Plane, [""])
sketch12.MapMode = "FlatFace"
sketch12.AttachmentOffset = App.Placement(App.Vector(0, 0, -99.5), App.Rotation())
add_polygon(sketch12, [(13, 6), (5, 6), (5, 56), (0, 56), (-60, 91), (-41, 243), (83, 201)])  # lines 0-6
sketch12.addConstraint(Sketcher.Constraint("Horizontal", 0))
sketch12.addConstraint(Sketcher.Constraint("Vertical", 1))
sketch12.addConstraint(Sketcher.Constraint("Horizontal", 2))
sketch12.addConstraint(Sketcher.Constraint("PointOnObject", 2, 2, -2))
sketch12.addConstraint(Sketcher.Constraint("DistanceX", 2, 2, 2, 1, 5.0))
sketch12.addConstraint(Sketcher.Constraint("DistanceY", 1, 1, 1, 2, 50.0))
sketch12.addConstraint(Sketcher.Constraint("DistanceY", -1, 1, 0, 2, 6.0))
sketch12.addConstraint(Sketcher.Constraint("Distance", 5, 130.626732))
sketch12.addConstraint(Sketcher.Constraint("Distance", 6, 206.699439))
sketch12.addConstraint(Sketcher.Constraint("DistanceX", 0, 2, 0, 1, 8.101487))
sketch12.addConstraint(Sketcher.Constraint("DistanceX", 4, 2, -1, 1, 41.037631))
sketch12.addConstraint(Sketcher.Constraint("DistanceX", 3, 2, 4, 2, 19.247151))
sketch12.addConstraint(Sketcher.Constraint("DistanceY", 3, 2, 4, 2, 151.755729))
sketch12.addConstraint(Sketcher.Constraint("DistanceX", 4, 2, 5, 2, 123.583909))
pocket10 = doc.addObject("PartDesign::Pocket", "Pocket009")
body.addObject(pocket10)
pocket10.Profile = sketch12
pocket10.Type = "ThroughAll"
pocket10.Reversed = True

# Sketch on XZ plane
sketch13 = doc.addObject("Sketcher::SketchObject", "Sketch012")
body.addObject(sketch13)
sketch13.AttachmentSupport = (doc.XZ_Plane, [""])
sketch13.MapMode = "FlatFace"
sketch13.AttachmentOffset = App.Placement(App.Vector(0, 0, -10), App.Rotation())
sketch13.addGeometry(Part.Circle(App.Vector(0, -32, 0), App.Vector(0, 0, 1), 34), False)
sketch13.addConstraint(Sketcher.Constraint("PointOnObject", 0, 3, -2))
sketch13.addConstraint(Sketcher.Constraint("Diameter", 0, 67.0))
sketch13.addConstraint(Sketcher.Constraint("DistanceY", 0, 3, -1, 1, 32.0))
pocket11 = doc.addObject("PartDesign::Pocket", "Pocket010")
body.addObject(pocket11)
pocket11.Profile = sketch13
pocket11.Type = "ThroughAll"
pocket11.Reversed = True

# Sketch on XZ plane
sketch14 = doc.addObject("Sketcher::SketchObject", "Sketch013")
body.addObject(sketch14)
sketch14.AttachmentSupport = (doc.XZ_Plane, [""])
sketch14.MapMode = "FlatFace"
sketch14.addGeometry(Part.Circle(App.Vector(0, -32, 0), App.Vector(0, 0, 1), 36), False)
sketch14.addGeometry(Part.Circle(App.Vector(0, -32, 0), App.Vector(0, 0, 1), 30), False)
sketch14.addConstraint(Sketcher.Constraint("Coincident", 1, 3, 0, 3))
sketch14.addConstraint(Sketcher.Constraint("PointOnObject", 0, 3, -2))
sketch14.addConstraint(Sketcher.Constraint("Diameter", 1, 61.0))
sketch14.addConstraint(Sketcher.Constraint("DistanceY", 0, 3, -1, 1, 32.0))
sketch14.addConstraint(Sketcher.Constraint("Diameter", 0, 72.012512))
pad3 = doc.addObject("PartDesign::Pad", "Pad002")
body.addObject(pad3)
pad3.Profile = sketch14
pad3.Length = 1
pad3.Reversed = True

# Sketch on YZ plane
sketch15 = doc.addObject("Sketcher::SketchObject", "Sketch014")
body.addObject(sketch15)
sketch15.AttachmentSupport = (doc.YZ_Plane, [""])
sketch15.MapMode = "FlatFace"
sketch15.AttachmentOffset = App.Placement(App.Vector(0, 0, -99.5), App.Rotation())
sketch15.addGeometry(Part.Circle(App.Vector(5, -104, 0), App.Vector(0, 0, 1), 1.5), False)
sketch15.addGeometry(Part.Circle(App.Vector(5, -2.4, 0), App.Vector(0, 0, 1), 1.4), False)
sketch15.addConstraint(Sketcher.Constraint("Vertical", 0, 3, 1, 3))
sketch15.addConstraint(Sketcher.Constraint("Diameter", 0, 3.0))
sketch15.addConstraint(Sketcher.Constraint("Diameter", 1, 2.9))
sketch15.addConstraint(Sketcher.Constraint("DistanceX", -1, 1, 0, 3, 5.0))
sketch15.addConstraint(Sketcher.Constraint("DistanceY", 0, 3, -1, 1, 104.0))
sketch15.addConstraint(Sketcher.Constraint("DistanceY", 1, 3, -1, 1, 2.4))
pocket12 = doc.addObject("PartDesign::Pocket", "Pocket011")
body.addObject(pocket12)
pocket12.Profile = sketch15
pocket12.Length = 10
pocket12.Reversed = True

# Sketch on XY plane
sketch16 = doc.addObject("Sketcher::SketchObject", "Sketch015")
body.addObject(sketch16)
sketch16.AttachmentSupport = (doc.XY_Plane, [""])
sketch16.MapMode = "FlatFace"
sketch16.AttachmentOffset = App.Placement(App.Vector(0, 0, -125), App.Rotation())
sketch16.addGeometry(Part.Circle(App.Vector(-94.5, 5, 0), App.Vector(0, 0, 1), 1.4), False)
sketch16.addGeometry(Part.Circle(App.Vector(-78.5, 5, 0), App.Vector(0, 0, 1), 1.4), False)
sketch16.addConstraint(Sketcher.Constraint("Equal", 0, 1))
sketch16.addConstraint(Sketcher.Constraint("Horizontal", 0, 3, 1, 3))
sketch16.addConstraint(Sketcher.Constraint("Diameter", 0, 2.9))
sketch16.addConstraint(Sketcher.Constraint("DistanceY", -1, 1, 0, 3, 5.0))
sketch16.addConstraint(Sketcher.Constraint("DistanceX", 0, 3, 1, 3, 16.0))
sketch16.addConstraint(Sketcher.Constraint("DistanceX", 0, 3, -1, 1, 94.5))
pocket13 = doc.addObject("PartDesign::Pocket", "Pocket012")
body.addObject(pocket13)
pocket13.Profile = sketch16
pocket13.Length = 10
pocket13.Reversed = True
doc.recompute()

mirrored3 = doc.addObject("PartDesign::Mirrored", "Mirrored002")
body.addObject(mirrored3)
mirrored3.Originals = [pocket12, pocket13]
mirrored3.MirrorPlane = (doc.YZ_Plane, [""])
body.Tip = mirrored3

# Sketch on XZ plane
sketch17 = doc.addObject("Sketcher::SketchObject", "Sketch016")
body.addObject(sketch17)
sketch17.AttachmentSupport = (doc.XZ_Plane, [""])
sketch17.MapMode = "FlatFace"
sketch17.addGeometry(Part.Circle(App.Vector(-90.5, -119.5, 0), App.Vector(0, 0, 1), 3), False)
sketch17.addGeometry(Part.Circle(App.Vector(-48.5, -119.5, 0), App.Vector(0, 0, 1), 3), False)
sketch17.addGeometry(Part.Circle(App.Vector(-87, -43.8, 0), App.Vector(0, 0, 1), 3), False)
sketch17.addGeometry(Part.Circle(App.Vector(-52, -43.8, 0), App.Vector(0, 0, 1), 3), False)
sketch17.addGeometry(Part.Circle(App.Vector(52, -43.8, 0), App.Vector(0, 0, 1), 3), False)
sketch17.addGeometry(Part.Circle(App.Vector(87, -43.8, 0), App.Vector(0, 0, 1), 3), False)
sketch17.addGeometry(Part.Circle(App.Vector(48.5, -119.5, 0), App.Vector(0, 0, 1), 3), False)
sketch17.addGeometry(Part.Circle(App.Vector(90.5, -119.5, 0), App.Vector(0, 0, 1), 3), False)
sketch17.addGeometry(Part.Circle(App.Vector(-90.5, -108.9, 0), App.Vector(0, 0, 1), 3), False)
sketch17.addGeometry(Part.Circle(App.Vector(-90.5, -89.8, 0), App.Vector(0, 0, 1), 3), False)
sketch17.addGeometry(Part.Circle(App.Vector(-48.5, -89.8, 0), App.Vector(0, 0, 1), 3), False)
sketch17.addGeometry(Part.Circle(App.Vector(-48.5, -108.9, 0), App.Vector(0, 0, 1), 3), False)
sketch17.addGeometry(Part.Circle(App.Vector(-87, -14.1, 0), App.Vector(0, 0, 1), 3), False)
sketch17.addGeometry(Part.Circle(App.Vector(-87, -27.8, 0), App.Vector(0, 0, 1), 3), False)
sketch17.addGeometry(Part.Circle(App.Vector(-52, -27.8, 0), App.Vector(0, 0, 1), 3), False)
sketch17.addGeometry(Part.Circle(App.Vector(-52, -14.1, 0), App.Vector(0, 0, 1), 3), False)
sketch17.addGeometry(Part.Circle(App.Vector(48.5, -108.9, 0), App.Vector(0, 0, 1), 3), False)
sketch17.addGeometry(Part.Circle(App.Vector(48.5, -89.8, 0), App.Vector(0, 0, 1), 3), False)
sketch17.addGeometry(Part.Circle(App.Vector(90.5, -89.8, 0), App.Vector(0, 0, 1), 3), False)
sketch17.addGeometry(Part.Circle(App.Vector(90.5, -108.9, 0), App.Vector(0, 0, 1), 3), False)
sketch17.addGeometry(Part.Circle(App.Vector(52, -14.1, 0), App.Vector(0, 0, 1), 3), False)
sketch17.addGeometry(Part.Circle(App.Vector(52, -27.8, 0), App.Vector(0, 0, 1), 3), False)
sketch17.addGeometry(Part.Circle(App.Vector(87, -27.8, 0), App.Vector(0, 0, 1), 3), False)
sketch17.addGeometry(Part.Circle(App.Vector(87, -14.1, 0), App.Vector(0, 0, 1), 3), False)
sketch17.addConstraint(Sketcher.Constraint("Equal", 0, 1))
sketch17.addConstraint(Sketcher.Constraint("Equal", 1, 2))
sketch17.addConstraint(Sketcher.Constraint("Equal", 2, 3))
sketch17.addConstraint(Sketcher.Constraint("Equal", 3, 4))
sketch17.addConstraint(Sketcher.Constraint("Equal", 4, 5))
sketch17.addConstraint(Sketcher.Constraint("Equal", 5, 6))
sketch17.addConstraint(Sketcher.Constraint("Equal", 6, 7))
sketch17.addConstraint(Sketcher.Constraint("Equal", 7, 8))
sketch17.addConstraint(Sketcher.Constraint("Equal", 8, 9))
sketch17.addConstraint(Sketcher.Constraint("Equal", 9, 10))
sketch17.addConstraint(Sketcher.Constraint("Equal", 10, 11))
sketch17.addConstraint(Sketcher.Constraint("Equal", 11, 12))
sketch17.addConstraint(Sketcher.Constraint("Equal", 12, 13))
sketch17.addConstraint(Sketcher.Constraint("Equal", 13, 14))
sketch17.addConstraint(Sketcher.Constraint("Equal", 14, 15))
sketch17.addConstraint(Sketcher.Constraint("Equal", 15, 16))
sketch17.addConstraint(Sketcher.Constraint("Equal", 16, 17))
sketch17.addConstraint(Sketcher.Constraint("Equal", 17, 18))
sketch17.addConstraint(Sketcher.Constraint("Equal", 18, 19))
sketch17.addConstraint(Sketcher.Constraint("Equal", 19, 20))
sketch17.addConstraint(Sketcher.Constraint("Equal", 20, 21))
sketch17.addConstraint(Sketcher.Constraint("Equal", 21, 22))
sketch17.addConstraint(Sketcher.Constraint("Equal", 22, 23))
sketch17.addConstraint(Sketcher.Constraint("Symmetric", 3, 3, 4, 3, -2))
sketch17.addConstraint(Sketcher.Constraint("Symmetric", 2, 3, 5, 3, -2))
sketch17.addConstraint(Sketcher.Constraint("Symmetric", 1, 3, 6, 3, -2))
sketch17.addConstraint(Sketcher.Constraint("Symmetric", 0, 3, 7, 3, -2))
sketch17.addConstraint(Sketcher.Constraint("Symmetric", 11, 3, 16, 3, -2))
sketch17.addConstraint(Sketcher.Constraint("Symmetric", 10, 3, 17, 3, -2))
sketch17.addConstraint(Sketcher.Constraint("Symmetric", 9, 3, 18, 3, -2))
sketch17.addConstraint(Sketcher.Constraint("Symmetric", 8, 3, 19, 3, -2))
sketch17.addConstraint(Sketcher.Constraint("Symmetric", 15, 3, 20, 3, -2))
sketch17.addConstraint(Sketcher.Constraint("Symmetric", 14, 3, 21, 3, -2))
sketch17.addConstraint(Sketcher.Constraint("Symmetric", 13, 3, 22, 3, -2))
sketch17.addConstraint(Sketcher.Constraint("Symmetric", 12, 3, 23, 3, -2))
sketch17.addConstraint(Sketcher.Constraint("Horizontal", 0, 3, 1, 3))
sketch17.addConstraint(Sketcher.Constraint("Horizontal", 2, 3, 3, 3))
sketch17.addConstraint(Sketcher.Constraint("Horizontal", 9, 3, 10, 3))
sketch17.addConstraint(Sketcher.Constraint("Horizontal", 8, 3, 11, 3))
sketch17.addConstraint(Sketcher.Constraint("Horizontal", 13, 3, 14, 3))
sketch17.addConstraint(Sketcher.Constraint("Horizontal", 12, 3, 15, 3))
sketch17.addConstraint(Sketcher.Constraint("Vertical", 0, 3, 8, 3))
sketch17.addConstraint(Sketcher.Constraint("Vertical", 8, 3, 9, 3))
sketch17.addConstraint(Sketcher.Constraint("Vertical", 1, 3, 10, 3))
sketch17.addConstraint(Sketcher.Constraint("Vertical", 10, 3, 11, 3))
sketch17.addConstraint(Sketcher.Constraint("Vertical", 2, 3, 12, 3))
sketch17.addConstraint(Sketcher.Constraint("Vertical", 12, 3, 13, 3))
sketch17.addConstraint(Sketcher.Constraint("Vertical", 3, 3, 14, 3))
sketch17.addConstraint(Sketcher.Constraint("Vertical", 14, 3, 15, 3))
sketch17.addConstraint(Sketcher.Constraint("Diameter", 0, 5.9))
sketch17.addConstraint(Sketcher.Constraint("DistanceX", 2, 3, -1, 1, 87.0))
sketch17.addConstraint(Sketcher.Constraint("DistanceX", 3, 3, -1, 1, 52.0))
sketch17.addConstraint(Sketcher.Constraint("DistanceX", 0, 3, 1, 3, 42.0))
sketch17.addConstraint(Sketcher.Constraint("DistanceX", 1, 3, 6, 3, 97.0))
sketch17.addConstraint(Sketcher.Constraint("DistanceY", 9, 3, 13, 3, 62.0))
sketch17.addConstraint(Sketcher.Constraint("DistanceY", 0, 3, 2, 3, 75.7))
sketch17.addConstraint(Sketcher.Constraint("DistanceY", 8, 3, 9, 3, 19.1))
sketch17.addConstraint(Sketcher.Constraint("DistanceY", 0, 3, -1, 1, 119.52))
sketch17.addConstraint(Sketcher.Constraint("DistanceY", 8, 3, -1, 1, 108.94))
sketch17.addConstraint(Sketcher.Constraint("DistanceY", 12, 3, -1, 1, 14.13))
pocket14 = doc.addObject("PartDesign::Pocket", "Pocket013")
body.addObject(pocket14)
pocket14.Profile = sketch17
pocket14.Length = 3.5
doc.recompute()

fillet = doc.addObject("PartDesign::Fillet", "Fillet")
body.addObject(fillet)
fillet.Base = (pocket14, edges_at(pocket14, [(-67.211, 2.5, 6), (67.211, 2.5, 6)]))
fillet.Radius = 10

# Sketch on XZ plane
sketch18 = doc.addObject("Sketcher::SketchObject", "Sketch017")
body.addObject(sketch18)
sketch18.AttachmentSupport = (doc.XZ_Plane, [""])
sketch18.MapMode = "FlatFace"
sketch18.AttachmentOffset = App.Placement(App.Vector(0, 0, -5), App.Rotation())
sketch18.addGeometry(Part.LineSegment(App.Vector(-67, 6, 0), App.Vector(-67, 16, 0)), False)
sketch18.addGeometry(Part.ArcOfCircle(Part.Circle(App.Vector(-57, 16, 0), App.Vector(0, 0, 1), 10), math.radians(180), math.radians(270)), False)
sketch18.addGeometry(Part.LineSegment(App.Vector(-57, 6, 0), App.Vector(-67, 6, 0)), False)
sketch18.addGeometry(Part.LineSegment(App.Vector(67, 6, 0), App.Vector(57, 6, 0)), False)
sketch18.addGeometry(Part.ArcOfCircle(Part.Circle(App.Vector(57, 16, 0), App.Vector(0, 0, 1), 10), math.radians(-90), math.radians(0)), False)
sketch18.addGeometry(Part.LineSegment(App.Vector(67, 16, 0), App.Vector(67, 6, 0)), False)
sketch18.addConstraint(Sketcher.Constraint("Tangent", 0, 2, 1, 1))
sketch18.addConstraint(Sketcher.Constraint("Tangent", 1, 2, 2, 1))
sketch18.addConstraint(Sketcher.Constraint("Coincident", 2, 2, 0, 1))
sketch18.addConstraint(Sketcher.Constraint("Tangent", 3, 2, 4, 1))
sketch18.addConstraint(Sketcher.Constraint("Tangent", 4, 2, 5, 1))
sketch18.addConstraint(Sketcher.Constraint("Coincident", 5, 2, 3, 1))
sketch18.addConstraint(Sketcher.Constraint("Vertical", 0))
sketch18.addConstraint(Sketcher.Constraint("Horizontal", 2))
sketch18.addConstraint(Sketcher.Constraint("Horizontal", 3))
sketch18.addConstraint(Sketcher.Constraint("Vertical", 5))
sketch18.addConstraint(Sketcher.Constraint("Equal", 1, 4))
sketch18.addConstraint(Sketcher.Constraint("Symmetric", 1, 3, 4, 3, -2))
sketch18.addConstraint(Sketcher.Constraint("Radius", 1, 10.0))
sketch18.addConstraint(Sketcher.Constraint("DistanceY", -1, 1, 1, 3, 16.0))
sketch18.addConstraint(Sketcher.Constraint("DistanceX", 1, 3, -1, 1, 57.211039))
pad4 = doc.addObject("PartDesign::Pad", "Pad003")
body.addObject(pad4)
pad4.Profile = sketch18
pad4.Length = 5
pad4.Reversed = True
doc.recompute()

fillet2 = doc.addObject("PartDesign::Fillet", "Fillet001")
body.addObject(fillet2)
fillet2.Base = (pad4, edges_at(pad4, [
    (-99.5, 10, -59.5),
    (99.5, 10, -59.5),
    (0, 10, -125),
    (-33.5, 10, -32),
]))
fillet2.Radius = 1
doc.recompute()

chamfer = doc.addObject("PartDesign::Chamfer", "Chamfer")
body.addObject(chamfer)
chamfer.Base = (fillet2, edges_at(fillet2, [
    (-93.45, 3.5, -119.52),
    (-92.2, 3.5, -119.52),
    (46.8, 3.5, -89.84),
    (45.55, 3.5, -89.84),
    (46.8, 3.5, -108.94),
    (45.55, 3.5, -108.94),
    (-54.95, 3.5, -14.13),
    (-53.7, 3.5, -14.13),
    (-54.95, 3.5, -27.84),
    (-53.7, 3.5, -27.84),
    (-89.95, 3.5, -27.84),
    (-88.7, 3.5, -27.84),
    (-89.95, 3.5, -14.13),
    (-88.7, 3.5, -14.13),
    (85.3, 3.5, -14.13),
    (84.05, 3.5, -14.13),
    (85.3, 3.5, -27.84),
    (84.05, 3.5, -27.84),
    (50.3, 3.5, -27.84),
    (49.05, 3.5, -27.84),
    (88.8, 3.5, -89.84),
    (87.55, 3.5, -89.84),
    (88.8, 3.5, -108.94),
    (87.55, 3.5, -108.94),
    (50.3, 3.5, -14.13),
    (49.05, 3.5, -14.13),
    (85.3, 3.5, -43.82),
    (84.05, 3.5, -43.82),
    (50.3, 3.5, -43.82),
    (49.05, 3.5, -43.82),
    (-54.95, 3.5, -43.82),
    (-53.7, 3.5, -43.82),
    (-89.95, 3.5, -43.82),
    (-88.7, 3.5, -43.82),
    (-51.45, 3.5, -119.52),
    (-51.45, 3.5, -108.94),
    (-50.2, 3.5, -108.94),
    (-51.45, 3.5, -89.84),
    (-50.2, 3.5, -89.84),
    (-93.45, 3.5, -89.84),
    (-92.2, 3.5, -89.84),
    (46.8, 3.5, -119.52),
    (45.55, 3.5, -119.52),
    (88.8, 3.5, -119.52),
    (87.55, 3.5, -119.52),
    (-93.45, 3.5, -108.94),
    (-92.2, 3.5, -108.94),
]))
chamfer.Size = 0.62

doc.recompute()
